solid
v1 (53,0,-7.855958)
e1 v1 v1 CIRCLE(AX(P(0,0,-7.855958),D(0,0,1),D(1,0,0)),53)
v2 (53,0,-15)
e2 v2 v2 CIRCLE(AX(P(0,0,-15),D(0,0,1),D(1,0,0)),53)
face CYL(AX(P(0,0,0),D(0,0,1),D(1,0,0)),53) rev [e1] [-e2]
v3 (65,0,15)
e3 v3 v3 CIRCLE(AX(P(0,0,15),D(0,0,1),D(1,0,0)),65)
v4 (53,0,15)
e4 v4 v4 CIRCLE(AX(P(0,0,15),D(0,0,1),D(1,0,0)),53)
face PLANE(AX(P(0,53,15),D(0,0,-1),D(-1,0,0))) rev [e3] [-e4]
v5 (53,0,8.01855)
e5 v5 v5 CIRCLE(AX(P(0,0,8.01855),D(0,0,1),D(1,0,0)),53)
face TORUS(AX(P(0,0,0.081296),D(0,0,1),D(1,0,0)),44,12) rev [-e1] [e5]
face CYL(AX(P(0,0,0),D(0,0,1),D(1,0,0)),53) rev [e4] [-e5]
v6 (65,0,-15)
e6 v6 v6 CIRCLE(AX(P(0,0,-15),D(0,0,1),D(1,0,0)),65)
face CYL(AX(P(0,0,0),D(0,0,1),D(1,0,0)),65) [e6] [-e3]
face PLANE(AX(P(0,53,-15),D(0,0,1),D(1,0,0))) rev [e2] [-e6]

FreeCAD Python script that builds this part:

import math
import FreeCAD as App
import Part
import Sketcher

V = App.Vector
Q = App.Units.Quantity

doc = App.newDocument("Part")
body = doc.addObject("PartDesign::Body", "Body")

# Sketch on YZ plane
sketch1 = doc.addObject("Sketcher::SketchObject", "Sketch")
body.addObject(sketch1)
sketch1.AttachmentSupport = (doc.YZ_Plane, [""])
sketch1.MapMode = "FlatFace"
sketch1.addGeometry([
    Part.LineSegment(V(53, -15, 0), V(65, -15, 0)),  # 0
    Part.LineSegment(V(65, -15, 0), V(65, 15, 0)),  # 1
    Part.LineSegment(V(65, 15, 0), V(53, 15, 0)),  # 2
    Part.LineSegment(V(53, 15, 0), V(53, 8, 0)),  # 3
    Part.ArcOfCircle(Part.Circle(V(44, 0, 0), V(0, 0, 1), 12), math.radians(-41), math.radians(41)),  # 4
    Part.LineSegment(V(53, -8, 0), V(53, -15, 0)),  # 5
], False)
sketch1.addConstraint([
    Sketcher.Constraint("Coincident", 0, 2, 1, 1),
    Sketcher.Constraint("Coincident", 1, 2, 2, 1),
    Sketcher.Constraint("Coincident", 2, 2, 3, 1),
    Sketcher.Constraint("Coincident", 3, 2, 4, 2),
    Sketcher.Constraint("Coincident", 4, 1, 5, 1),
    Sketcher.Constraint("Coincident", 5, 2, 0, 1),
    Sketcher.Constraint("Horizontal", 0),
    Sketcher.Constraint("Vertical", 1),
    Sketcher.Constraint("Horizontal", 2),
    Sketcher.Constraint("Vertical", 3),
    Sketcher.Constraint("Vertical", 5),
    Sketcher.Constraint("Symmetric", 2, 2, 5, 2, -1),
    Sketcher.Constraint("Radius", 4, Q("12 mm")),
    Sketcher.Constraint("DistanceX", 0, 1, 0, 2, Q("12 mm")),
    Sketcher.Constraint("DistanceY", 1, 1, 1, 2, Q("30 mm")),
    Sketcher.Constraint("DistanceX", -1, 1, 4, 3, Q("44 mm")),
    Sketcher.Constraint("DistanceX", -1, 1, 0, 2, Q("65 mm")),
    Sketcher.Constraint("DistanceY", 3, 2, 3, 1, Q("6.98145 mm")),
])
revolution = doc.addObject("PartDesign::Revolution", "Revolution")
body.addObject(revolution)
revolution.Profile = sketch1
revolution.ReferenceAxis = (sketch1, ["V_Axis"])
revolution.Angle = 360

doc.recompute()
